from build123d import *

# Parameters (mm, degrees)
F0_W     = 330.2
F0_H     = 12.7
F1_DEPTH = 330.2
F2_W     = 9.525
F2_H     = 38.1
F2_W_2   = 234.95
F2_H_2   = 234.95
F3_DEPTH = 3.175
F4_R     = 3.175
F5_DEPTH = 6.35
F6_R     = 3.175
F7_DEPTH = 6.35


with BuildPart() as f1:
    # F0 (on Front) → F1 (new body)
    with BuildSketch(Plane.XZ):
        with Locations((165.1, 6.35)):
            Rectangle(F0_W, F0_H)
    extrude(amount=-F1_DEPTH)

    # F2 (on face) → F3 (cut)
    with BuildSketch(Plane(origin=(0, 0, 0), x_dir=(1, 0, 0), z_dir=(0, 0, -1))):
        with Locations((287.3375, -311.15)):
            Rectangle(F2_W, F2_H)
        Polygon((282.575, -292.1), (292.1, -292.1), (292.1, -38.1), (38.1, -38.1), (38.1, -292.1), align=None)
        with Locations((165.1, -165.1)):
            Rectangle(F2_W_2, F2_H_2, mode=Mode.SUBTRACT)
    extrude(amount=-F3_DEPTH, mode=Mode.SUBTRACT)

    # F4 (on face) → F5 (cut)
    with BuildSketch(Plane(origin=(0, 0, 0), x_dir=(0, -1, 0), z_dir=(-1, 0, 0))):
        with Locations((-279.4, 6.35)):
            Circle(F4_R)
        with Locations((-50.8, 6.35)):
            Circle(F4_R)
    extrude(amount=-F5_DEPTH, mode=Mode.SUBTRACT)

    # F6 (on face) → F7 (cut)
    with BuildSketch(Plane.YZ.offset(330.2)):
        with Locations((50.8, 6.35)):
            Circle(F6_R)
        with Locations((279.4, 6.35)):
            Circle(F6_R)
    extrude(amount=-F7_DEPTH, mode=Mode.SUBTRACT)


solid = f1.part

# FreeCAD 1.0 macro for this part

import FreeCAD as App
import Part
import Sketcher
from FreeCAD import Vector
Q = App.Units.Quantity

doc = App.newDocument("Part")
body = doc.addObject("PartDesign::Body", "Body")

sketch1 = body.newObject("Sketcher::SketchObject", "Sketch")
sketch1.AttachmentSupport = (doc.getObject("XZ_Plane"), [""])
sketch1.MapMode = "FlatFace"
sketch1.addGeometry([
    Part.LineSegment(Vector(0, 13, 0), Vector(0, 0, 0)),
    Part.LineSegment(Vector(0, 0, 0), Vector(330, 0, 0)),
    Part.LineSegment(Vector(330, 0, 0), Vector(330, 13, 0)),
    Part.LineSegment(Vector(330, 13, 0), Vector(0, 13, 0)),
], False)
sketch1.addConstraint([
    Sketcher.Constraint("Coincident", 0, 2, 1, 1),
    Sketcher.Constraint("Coincident", 1, 2, 2, 1),
    Sketcher.Constraint("Coincident", 2, 2, 3, 1),
    Sketcher.Constraint("Coincident", 3, 2, 0, 1),
    Sketcher.Constraint("Vertical", 0),
    Sketcher.Constraint("Horizontal", 1),
    Sketcher.Constraint("Vertical", 2),
    Sketcher.Constraint("Horizontal", 3),
    Sketcher.Constraint("Coincident", 0, 2, -1, 1),
    Sketcher.Constraint("DistanceX", 1, 1, 1, 2, Q("13 in")),
    Sketcher.Constraint("DistanceY", 0, 2, 0, 1, Q("0.5 in")),
])
pad1 = body.newObject("PartDesign::Pad", "Pad")
pad1.Profile = sketch1
pad1.Length = Q("13 in")
pad1.Reversed = True

sketch2 = body.newObject("Sketcher::SketchObject", "Sketch001")
sketch2.AttachmentSupport = (doc.getObject("XY_Plane"), [""])
sketch2.MapMode = "FlatFace"
sketch2.addGeometry([
    Part.LineSegment(Vector(283, 292, 0), Vector(283, 330, 0)),
    Part.LineSegment(Vector(283, 330, 0), Vector(292, 330, 0)),
    Part.LineSegment(Vector(292, 330, 0), Vector(292, 38, 0)),
    Part.LineSegment(Vector(292, 38, 0), Vector(38, 38, 0)),
    Part.LineSegment(Vector(38, 38, 0), Vector(38, 292, 0)),
    Part.LineSegment(Vector(38, 292, 0), Vector(283, 292, 0)),
    Part.LineSegment(Vector(283, 283, 0), Vector(48, 283, 0)),
    Part.LineSegment(Vector(48, 283, 0), Vector(48, 48, 0)),
    Part.LineSegment(Vector(48, 48, 0), Vector(283, 48, 0)),
    Part.LineSegment(Vector(283, 48, 0), Vector(283, 283, 0)),
], False)
sketch2.addConstraint([
    Sketcher.Constraint("Coincident", 0, 2, 1, 1),
    Sketcher.Constraint("Coincident", 1, 2, 2, 1),
    Sketcher.Constraint("Coincident", 2, 2, 3, 1),
    Sketcher.Constraint("Coincident", 3, 2, 4, 1),
    Sketcher.Constraint("Coincident", 4, 2, 5, 1),
    Sketcher.Constraint("Coincident", 5, 2, 0, 1),
    Sketcher.Constraint("Coincident", 6, 2, 7, 1),
    Sketcher.Constraint("Coincident", 7, 2, 8, 1),
    Sketcher.Constraint("Coincident", 8, 2, 9, 1),
    Sketcher.Constraint("Coincident", 9, 2, 6, 1),
    Sketcher.Constraint("Vertical", 0),
    Sketcher.Constraint("Horizontal", 1),
    Sketcher.Constraint("Vertical", 2),
    Sketcher.Constraint("Horizontal", 3),
    Sketcher.Constraint("Vertical", 4),
    Sketcher.Constraint("Horizontal", 5),
    Sketcher.Constraint("Horizontal", 6),
    Sketcher.Constraint("Vertical", 7),
    Sketcher.Constraint("Horizontal", 8),
    Sketcher.Constraint("Vertical", 9),
    Sketcher.Constraint("Vertical", 5, 2, 8, 2),
    Sketcher.Constraint("Equal", 3, 4),
    Sketcher.Constraint("Equal", 8, 7),
    Sketcher.Constraint("DistanceX", 3, 2, 3, 1, Q("10 in")),
    Sketcher.Constraint("DistanceY", 0, 1, 0, 2, Q("1.5 in")),
    Sketcher.Constraint("DistanceY", -1, 1, 0, 2, Q("13 in")),
    Sketcher.Constraint("DistanceX", 6, 2, 6, 1, Q("9.25 in")),
    Sketcher.Constraint("DistanceX", -1, 1, 1, 2, Q("11.5 in")),
    Sketcher.Constraint("DistanceX", 1, 1, 1, 2, Q("0.375 in")),
    Sketcher.Constraint("DistanceY", -1, 1, 6, 2, Q("11.125 in")),
])
pocket1 = body.newObject("PartDesign::Pocket", "Pocket")
pocket1.Profile = sketch2
pocket1.Length = Q("0.125 in")
pocket1.Reversed = True

sketch3 = body.newObject("Sketcher::SketchObject", "Sketch002")
sketch3.AttachmentSupport = (doc.getObject("YZ_Plane"), [""])
sketch3.MapMode = "FlatFace"
sketch3.addGeometry([
    Part.Circle(Vector(279.4, 6.3, 0), Vector(0, 0, 1), 3.2),
    Part.Circle(Vector(50.8, 6.3, 0), Vector(0, 0, 1), 3.2),
], False)
sketch3.addConstraint([
    Sketcher.Constraint("Equal", 0, 1),
    Sketcher.Constraint("Horizontal", 0, 3, 1, 3),
    Sketcher.Constraint("Diameter", 0, Q("0.25 in")),
    Sketcher.Constraint("DistanceX", -1, 1, 0, 3, Q("11 in")),
    Sketcher.Constraint("DistanceX", -1, 1, 1, 3, Q("2 in")),
    Sketcher.Constraint("DistanceY", -1, 1, 0, 3, Q("0.25 in")),
])
pocket2 = body.newObject("PartDesign::Pocket", "Pocket001")
pocket2.Profile = sketch3
pocket2.Length = Q("0.25 in")
pocket2.Reversed = True

sketch4 = body.newObject("Sketcher::SketchObject", "Sketch003")
sketch4.AttachmentSupport = (doc.getObject("YZ_Plane"), [""])
sketch4.MapMode = "FlatFace"
sketch4.AttachmentOffset = App.Placement(Vector(0, 0, 13 * 25.4), App.Rotation())
sketch4.addGeometry([
    Part.Circle(Vector(50.8, 6.3, 0), Vector(0, 0, 1), 3.2),
    Part.Circle(Vector(279.4, 6.3, 0), Vector(0, 0, 1), 3.2),
], False)
sketch4.addConstraint([
    Sketcher.Constraint("Equal", 0, 1),
    Sketcher.Constraint("Horizontal", 0, 3, 1, 3),
    Sketcher.Constraint("Diameter", 0, Q("0.25 in")),
    Sketcher.Constraint("DistanceX", -1, 1, 0, 3, Q("2 in")),
    Sketcher.Constraint("DistanceX", -1, 1, 1, 3, Q("11 in")),
    Sketcher.Constraint("DistanceY", -1, 1, 0, 3, Q("0.25 in")),
])
pocket3 = body.newObject("PartDesign::Pocket", "Pocket002")
pocket3.Profile = sketch4
pocket3.Length = Q("0.25 in")

doc.recompute()
